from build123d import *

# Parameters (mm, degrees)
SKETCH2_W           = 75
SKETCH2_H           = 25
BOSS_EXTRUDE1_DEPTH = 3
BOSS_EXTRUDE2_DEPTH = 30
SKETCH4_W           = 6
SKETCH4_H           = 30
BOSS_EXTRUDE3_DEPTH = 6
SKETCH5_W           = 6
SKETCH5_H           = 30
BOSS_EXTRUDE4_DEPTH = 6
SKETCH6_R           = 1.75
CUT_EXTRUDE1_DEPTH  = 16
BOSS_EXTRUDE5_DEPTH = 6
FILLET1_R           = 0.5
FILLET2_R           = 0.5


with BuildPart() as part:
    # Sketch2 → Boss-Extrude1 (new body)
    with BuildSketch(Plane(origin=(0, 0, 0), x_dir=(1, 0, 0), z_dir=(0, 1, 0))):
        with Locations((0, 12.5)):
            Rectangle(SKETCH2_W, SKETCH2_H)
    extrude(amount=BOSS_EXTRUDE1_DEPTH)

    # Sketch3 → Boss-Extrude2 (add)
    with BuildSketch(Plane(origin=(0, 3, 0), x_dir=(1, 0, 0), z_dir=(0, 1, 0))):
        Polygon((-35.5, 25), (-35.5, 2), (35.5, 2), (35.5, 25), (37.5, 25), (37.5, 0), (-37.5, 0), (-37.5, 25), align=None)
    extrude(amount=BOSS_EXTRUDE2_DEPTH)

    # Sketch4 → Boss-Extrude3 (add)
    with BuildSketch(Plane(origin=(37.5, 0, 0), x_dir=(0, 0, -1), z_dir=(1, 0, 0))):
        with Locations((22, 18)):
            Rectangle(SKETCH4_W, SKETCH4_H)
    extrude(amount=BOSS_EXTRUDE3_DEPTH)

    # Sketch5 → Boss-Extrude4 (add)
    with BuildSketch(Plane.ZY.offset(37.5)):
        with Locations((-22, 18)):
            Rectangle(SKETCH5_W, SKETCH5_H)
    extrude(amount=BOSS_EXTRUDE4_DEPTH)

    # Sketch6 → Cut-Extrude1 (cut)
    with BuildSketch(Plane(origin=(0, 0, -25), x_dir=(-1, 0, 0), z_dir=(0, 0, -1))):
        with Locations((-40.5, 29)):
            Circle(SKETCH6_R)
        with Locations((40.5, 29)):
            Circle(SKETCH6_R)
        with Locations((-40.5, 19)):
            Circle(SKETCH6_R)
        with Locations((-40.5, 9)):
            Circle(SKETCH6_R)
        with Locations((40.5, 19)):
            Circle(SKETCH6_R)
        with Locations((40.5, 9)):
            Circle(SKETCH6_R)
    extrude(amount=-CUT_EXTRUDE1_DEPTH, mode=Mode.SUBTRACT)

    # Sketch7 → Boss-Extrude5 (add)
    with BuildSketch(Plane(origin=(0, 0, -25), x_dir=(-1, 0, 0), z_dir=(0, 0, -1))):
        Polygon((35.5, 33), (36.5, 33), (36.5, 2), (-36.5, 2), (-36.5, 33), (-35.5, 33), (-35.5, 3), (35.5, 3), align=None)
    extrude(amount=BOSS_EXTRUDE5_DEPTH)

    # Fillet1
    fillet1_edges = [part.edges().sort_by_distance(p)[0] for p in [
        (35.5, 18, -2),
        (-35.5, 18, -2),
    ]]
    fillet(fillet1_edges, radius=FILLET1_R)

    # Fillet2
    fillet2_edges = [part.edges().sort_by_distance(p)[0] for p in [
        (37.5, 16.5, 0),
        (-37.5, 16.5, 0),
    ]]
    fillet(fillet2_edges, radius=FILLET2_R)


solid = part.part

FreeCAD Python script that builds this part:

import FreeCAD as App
import Part
import Sketcher

V = App.Vector


def edges_at(feature, points):
    """Names of the edges that pass closest to the given points."""
    edges = feature.Shape.Edges
    near = lambda p: min(range(len(edges)), key=lambda i: edges[i].distToShape(Part.Vertex(*p))[0])
    return sorted({f"Edge{near(p) + 1}" for p in points})

doc = App.newDocument("Part")
body = doc.addObject("PartDesign::Body", "Body")

# Sketch on XZ plane
sketch1 = body.newObject("Sketcher::SketchObject", "Sketch")
sketch1.AttachmentSupport = (doc.getObject("XZ_Plane"), [""])
sketch1.MapMode = "FlatFace"
sketch1.addGeometry([
    Part.LineSegment(V(-38, -25, 0), V(-38, 0, 0)),
    Part.LineSegment(V(-38, 0, 0), V(38, 0, 0)),
    Part.LineSegment(V(38, 0, 0), V(38, -25, 0)),
    Part.LineSegment(V(38, -25, 0), V(-38, -25, 0)),
], False)
sketch1.addConstraint([
    Sketcher.Constraint("Coincident", 0, 2, 1, 1),
    Sketcher.Constraint("Coincident", 1, 2, 2, 1),
    Sketcher.Constraint("Coincident", 2, 2, 3, 1),
    Sketcher.Constraint("Coincident", 3, 2, 0, 1),
    Sketcher.Constraint("Vertical", 0),
    Sketcher.Constraint("Horizontal", 1),
    Sketcher.Constraint("Vertical", 2),
    Sketcher.Constraint("Horizontal", 3),
    Sketcher.Constraint("Symmetric", 0, 2, 1, 2, -1, 1),
    Sketcher.Constraint("DistanceX", 1, 1, 1, 2, 75.0),
    Sketcher.Constraint("DistanceY", 0, 1, 0, 2, 25.0),
])
pad1 = body.newObject("PartDesign::Pad", "Pad")
pad1.Profile = sketch1
pad1.Length = 3
pad1.Reversed = True

# Sketch on XZ plane
sketch2 = body.newObject("Sketcher::SketchObject", "Sketch001")
sketch2.AttachmentSupport = (doc.getObject("XZ_Plane"), [""])
sketch2.MapMode = "FlatFace"
sketch2.AttachmentOffset = App.Placement(V(0, 0, -3), App.Rotation())
sketch2.addGeometry([
    Part.LineSegment(V(-35.5, -2, 0), V(-35.5, -25, 0)),  # 0
    Part.LineSegment(V(-35.5, -25, 0), V(-37.5, -25, 0)),  # 1
    Part.LineSegment(V(-37.5, -25, 0), V(-37.5, 0, 0)),  # 2
    Part.LineSegment(V(-37.5, 0, 0), V(37.5, 0, 0)),  # 3
    Part.LineSegment(V(37.5, 0, 0), V(37.5, -25, 0)),  # 4
    Part.LineSegment(V(37.5, -25, 0), V(35.5, -25, 0)),  # 5
    Part.LineSegment(V(35.5, -25, 0), V(35.5, -2, 0)),  # 6
    Part.LineSegment(V(35.5, -2, 0), V(-35.5, -2, 0)),  # 7
], False)
sketch2.addConstraint([
    Sketcher.Constraint("Coincident", 0, 2, 1, 1),
    Sketcher.Constraint("Coincident", 1, 2, 2, 1),
    Sketcher.Constraint("Coincident", 2, 2, 3, 1),
    Sketcher.Constraint("Coincident", 3, 2, 4, 1),
    Sketcher.Constraint("Coincident", 4, 2, 5, 1),
    Sketcher.Constraint("Coincident", 5, 2, 6, 1),
    Sketcher.Constraint("Coincident", 6, 2, 7, 1),
    Sketcher.Constraint("Coincident", 7, 2, 0, 1),
    Sketcher.Constraint("Vertical", 0),
    Sketcher.Constraint("Horizontal", 1),
    Sketcher.Constraint("Vertical", 2),
    Sketcher.Constraint("Horizontal", 3),
    Sketcher.Constraint("Vertical", 4),
    Sketcher.Constraint("Horizontal", 5),
    Sketcher.Constraint("Vertical", 6),
    Sketcher.Constraint("Horizontal", 7),
    Sketcher.Constraint("Symmetric", 2, 2, 3, 2, -1, 1),
    Sketcher.Constraint("Symmetric", 0, 2, 5, 2, -2),
    Sketcher.Constraint("DistanceX", 1, 2, 1, 1, 2.0),
    Sketcher.Constraint("DistanceX", 3, 1, 3, 2, 75.0),
    Sketcher.Constraint("DistanceY", 0, 2, 0, 1, 23.0),
    Sketcher.Constraint("DistanceY", 2, 1, 2, 2, 25.0),
])
pad2 = body.newObject("PartDesign::Pad", "Pad001")
pad2.Profile = sketch2
pad2.Length = 30
pad2.Reversed = True

# Sketch on YZ plane
sketch3 = body.newObject("Sketcher::SketchObject", "Sketch002")
sketch3.AttachmentSupport = (doc.getObject("YZ_Plane"), [""])
sketch3.MapMode = "FlatFace"
sketch3.AttachmentOffset = App.Placement(V(0, 0, 37.5), App.Rotation())
sketch3.addGeometry([
    Part.LineSegment(V(33, -19, 0), V(3, -19, 0)),
    Part.LineSegment(V(3, -19, 0), V(3, -25, 0)),
    Part.LineSegment(V(3, -25, 0), V(33, -25, 0)),
    Part.LineSegment(V(33, -25, 0), V(33, -19, 0)),
], False)
sketch3.addConstraint([
    Sketcher.Constraint("Coincident", 0, 2, 1, 1),
    Sketcher.Constraint("Coincident", 1, 2, 2, 1),
    Sketcher.Constraint("Coincident", 2, 2, 3, 1),
    Sketcher.Constraint("Coincident", 3, 2, 0, 1),
    Sketcher.Constraint("Horizontal", 0),
    Sketcher.Constraint("Vertical", 1),
    Sketcher.Constraint("Horizontal", 2),
    Sketcher.Constraint("Vertical", 3),
    Sketcher.Constraint("DistanceX", 0, 2, 0, 1, 30.0),
    Sketcher.Constraint("DistanceY", 1, 2, 1, 1, 6.0),
    Sketcher.Constraint("DistanceX", -1, 1, 0, 2, 3.0),
    Sketcher.Constraint("DistanceY", 0, 2, -1, 1, 19.0),
])
pad3 = body.newObject("PartDesign::Pad", "Pad002")
pad3.Profile = sketch3
pad3.Length = 6

# Sketch on YZ plane
sketch4 = body.newObject("Sketcher::SketchObject", "Sketch003")
sketch4.AttachmentSupport = (doc.getObject("YZ_Plane"), [""])
sketch4.MapMode = "FlatFace"
sketch4.AttachmentOffset = App.Placement(V(0, 0, -37.5), App.Rotation())
sketch4.addGeometry([
    Part.LineSegment(V(33, -25, 0), V(3, -25, 0)),
    Part.LineSegment(V(3, -25, 0), V(3, -19, 0)),
    Part.LineSegment(V(3, -19, 0), V(33, -19, 0)),
    Part.LineSegment(V(33, -19, 0), V(33, -25, 0)),
], False)
sketch4.addConstraint([
    Sketcher.Constraint("Coincident", 0, 2, 1, 1),
    Sketcher.Constraint("Coincident", 1, 2, 2, 1),
    Sketcher.Constraint("Coincident", 2, 2, 3, 1),
    Sketcher.Constraint("Coincident", 3, 2, 0, 1),
    Sketcher.Constraint("Horizontal", 0),
    Sketcher.Constraint("Vertical", 1),
    Sketcher.Constraint("Horizontal", 2),
    Sketcher.Constraint("Vertical", 3),
    Sketcher.Constraint("DistanceX", 0, 2, 0, 1, 30.0),
    Sketcher.Constraint("DistanceY", 1, 1, 1, 2, 6.0),
    Sketcher.Constraint("DistanceX", -1, 1, 0, 2, 3.0),
    Sketcher.Constraint("DistanceY", 0, 2, -1, 1, 25.0),
])
pad4 = body.newObject("PartDesign::Pad", "Pad003")
pad4.Profile = sketch4
pad4.Length = 6
pad4.Reversed = True

# Sketch on XY plane
sketch5 = body.newObject("Sketcher::SketchObject", "Sketch004")
sketch5.AttachmentSupport = (doc.getObject("XY_Plane"), [""])
sketch5.MapMode = "FlatFace"
sketch5.AttachmentOffset = App.Placement(V(0, 0, -25), App.Rotation())
sketch5.addGeometry([
    Part.Circle(V(40.5, 29, 0), V(0, 0, 1), 1.8),  # 0
    Part.Circle(V(-40.5, 29, 0), V(0, 0, 1), 1.8),  # 1
    Part.Circle(V(40.5, 19, 0), V(0, 0, 1), 1.8),  # 2
    Part.Circle(V(40.5, 9, 0), V(0, 0, 1), 1.8),  # 3
    Part.Circle(V(-40.5, 19, 0), V(0, 0, 1), 1.8),  # 4
    Part.Circle(V(-40.5, 9, 0), V(0, 0, 1), 1.8),  # 5
], False)
sketch5.addConstraint([
    Sketcher.Constraint("Equal", 0, 1),
    Sketcher.Constraint("Equal", 1, 2),
    Sketcher.Constraint("Equal", 2, 3),
    Sketcher.Constraint("Equal", 3, 4),
    Sketcher.Constraint("Equal", 4, 5),
    Sketcher.Constraint("Symmetric", 0, 3, 1, 3, -2),
    Sketcher.Constraint("Symmetric", 2, 3, 4, 3, -2),
    Sketcher.Constraint("Symmetric", 3, 3, 5, 3, -2),
    Sketcher.Constraint("Vertical", 0, 3, 2, 3),
    Sketcher.Constraint("Vertical", 2, 3, 3, 3),
    Sketcher.Constraint("Diameter", 0, 3.5),
    Sketcher.Constraint("DistanceY", -1, 1, 0, 3, 29.0),
    Sketcher.Constraint("DistanceY", -1, 1, 2, 3, 19.0),
    Sketcher.Constraint("DistanceY", -1, 1, 3, 3, 9.0),
    Sketcher.Constraint("DistanceX", 1, 3, 0, 3, 81.0),
])
pocket1 = body.newObject("PartDesign::Pocket", "Pocket")
pocket1.Profile = sketch5
pocket1.Length = 16
pocket1.Reversed = True

# Sketch on XY plane
sketch6 = body.newObject("Sketcher::SketchObject", "Sketch005")
sketch6.AttachmentSupport = (doc.getObject("XY_Plane"), [""])
sketch6.MapMode = "FlatFace"
sketch6.AttachmentOffset = App.Placement(V(0, 0, -25), App.Rotation())
sketch6.addGeometry([
    Part.LineSegment(V(-36.5, 33, 0), V(-35.5, 33, 0)),  # 0
    Part.LineSegment(V(-35.5, 33, 0), V(-35.5, 3, 0)),  # 1
    Part.LineSegment(V(-35.5, 3, 0), V(35.5, 3, 0)),  # 2
    Part.LineSegment(V(35.5, 3, 0), V(35.5, 33, 0)),  # 3
    Part.LineSegment(V(35.5, 33, 0), V(36.5, 33, 0)),  # 4
    Part.LineSegment(V(36.5, 33, 0), V(36.5, 2, 0)),  # 5
    Part.LineSegment(V(36.5, 2, 0), V(-36.5, 2, 0)),  # 6
    Part.LineSegment(V(-36.5, 2, 0), V(-36.5, 33, 0)),  # 7
], False)
sketch6.addConstraint([
    Sketcher.Constraint("Coincident", 0, 2, 1, 1),
    Sketcher.Constraint("Coincident", 1, 2, 2, 1),
    Sketcher.Constraint("Coincident", 2, 2, 3, 1),
    Sketcher.Constraint("Coincident", 3, 2, 4, 1),
    Sketcher.Constraint("Coincident", 4, 2, 5, 1),
    Sketcher.Constraint("Coincident", 5, 2, 6, 1),
    Sketcher.Constraint("Coincident", 6, 2, 7, 1),
    Sketcher.Constraint("Coincident", 7, 2, 0, 1),
    Sketcher.Constraint("Horizontal", 0),
    Sketcher.Constraint("Vertical", 1),
    Sketcher.Constraint("Horizontal", 2),
    Sketcher.Constraint("Vertical", 3),
    Sketcher.Constraint("Horizontal", 4),
    Sketcher.Constraint("Vertical", 5),
    Sketcher.Constraint("Horizontal", 6),
    Sketcher.Constraint("Vertical", 7),
    Sketcher.Constraint("Symmetric", 0, 2, 3, 2, -2),
    Sketcher.Constraint("Equal", 0, 4),
    Sketcher.Constraint("DistanceX", 0, 1, 0, 2, 1.0),
    Sketcher.Constraint("DistanceX", 2, 1, 2, 2, 71.0),
    Sketcher.Constraint("DistanceY", 1, 2, 1, 1, 30.0),
    Sketcher.Constraint("DistanceY", 5, 2, 5, 1, 31.0),
    Sketcher.Constraint("DistanceY", -1, 1, 0, 2, 33.0),
])
pad5 = body.newObject("PartDesign::Pad", "Pad004")
pad5.Profile = sketch6
pad5.Length = 6
pad5.Reversed = True
doc.recompute()

fillet = body.newObject("PartDesign::Fillet", "Fillet")
fillet.Base = (pad5, edges_at(pad5, [(35.5, 18, -2), (-35.5, 18, -2)]))
fillet.Radius = 0.5
doc.recompute()

fillet2 = body.newObject("PartDesign::Fillet", "Fillet001")
fillet2.Base = (fillet, edges_at(fillet, [(37.5, 16.5, 0), (-37.5, 16.5, 0)]))
fillet2.Radius = 0.5

doc.recompute()
